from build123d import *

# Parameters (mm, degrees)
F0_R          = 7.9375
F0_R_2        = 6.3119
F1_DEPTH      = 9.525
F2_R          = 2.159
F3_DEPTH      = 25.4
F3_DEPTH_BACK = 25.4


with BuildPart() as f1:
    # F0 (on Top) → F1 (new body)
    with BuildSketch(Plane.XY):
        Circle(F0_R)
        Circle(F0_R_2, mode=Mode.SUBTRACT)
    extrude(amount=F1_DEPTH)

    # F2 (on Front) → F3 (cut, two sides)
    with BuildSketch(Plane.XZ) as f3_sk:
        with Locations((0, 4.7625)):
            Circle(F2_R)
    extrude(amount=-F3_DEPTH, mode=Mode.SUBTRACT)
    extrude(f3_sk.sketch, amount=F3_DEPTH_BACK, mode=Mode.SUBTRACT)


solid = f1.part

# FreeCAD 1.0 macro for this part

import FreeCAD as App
import Part
import Sketcher
Q = App.Units.Quantity

doc = App.newDocument("Part")
body = doc.addObject("PartDesign::Body", "Body")

# Sketch on XY plane
sketch1 = doc.addObject("Sketcher::SketchObject", "Sketch")
body.addObject(sketch1)
sketch1.AttachmentSupport = (doc.XY_Plane, [""])
sketch1.MapMode = "FlatFace"
sketch1.addGeometry(Part.Circle(App.Vector(0, 0, 0), App.Vector(0, 0, 1), 7.9375), False)
sketch1.addGeometry(Part.Circle(App.Vector(0, 0, 0), App.Vector(0, 0, 1), 6.3119), False)
sketch1.addConstraint(Sketcher.Constraint("Coincident", 0, 3, -1, 1))
sketch1.addConstraint(Sketcher.Constraint("Coincident", 1, 3, -1, 1))
sketch1.addConstraint(Sketcher.Constraint("Diameter", 0, Q("0.625 in")))
sketch1.addConstraint(Sketcher.Constraint("Diameter", 1, Q("0.497 in")))
pad1 = doc.addObject("PartDesign::Pad", "Pad")
body.addObject(pad1)
pad1.Profile = sketch1
pad1.Length = Q("0.375 in")

# Sketch on XZ plane
sketch2 = doc.addObject("Sketcher::SketchObject", "Sketch001")
body.addObject(sketch2)
sketch2.AttachmentSupport = (doc.XZ_Plane, [""])
sketch2.MapMode = "FlatFace"
sketch2.addGeometry(Part.Circle(App.Vector(0, 4.7625, 0), App.Vector(0, 0, 1), 2.159), False)
sketch2.addConstraint(Sketcher.Constraint("PointOnObject", 0, 3, -2))
sketch2.addConstraint(Sketcher.Constraint("Diameter", 0, Q("0.17 in")))
sketch2.addConstraint(Sketcher.Constraint("DistanceY", -1, 1, 0, 3, Q("0.1875 in")))
pocket1 = doc.addObject("PartDesign::Pocket", "Pocket")
body.addObject(pocket1)
pocket1.Profile = sketch2
pocket1.Type = "ThroughAll"
pocket1.Midplane = True

doc.recompute()
